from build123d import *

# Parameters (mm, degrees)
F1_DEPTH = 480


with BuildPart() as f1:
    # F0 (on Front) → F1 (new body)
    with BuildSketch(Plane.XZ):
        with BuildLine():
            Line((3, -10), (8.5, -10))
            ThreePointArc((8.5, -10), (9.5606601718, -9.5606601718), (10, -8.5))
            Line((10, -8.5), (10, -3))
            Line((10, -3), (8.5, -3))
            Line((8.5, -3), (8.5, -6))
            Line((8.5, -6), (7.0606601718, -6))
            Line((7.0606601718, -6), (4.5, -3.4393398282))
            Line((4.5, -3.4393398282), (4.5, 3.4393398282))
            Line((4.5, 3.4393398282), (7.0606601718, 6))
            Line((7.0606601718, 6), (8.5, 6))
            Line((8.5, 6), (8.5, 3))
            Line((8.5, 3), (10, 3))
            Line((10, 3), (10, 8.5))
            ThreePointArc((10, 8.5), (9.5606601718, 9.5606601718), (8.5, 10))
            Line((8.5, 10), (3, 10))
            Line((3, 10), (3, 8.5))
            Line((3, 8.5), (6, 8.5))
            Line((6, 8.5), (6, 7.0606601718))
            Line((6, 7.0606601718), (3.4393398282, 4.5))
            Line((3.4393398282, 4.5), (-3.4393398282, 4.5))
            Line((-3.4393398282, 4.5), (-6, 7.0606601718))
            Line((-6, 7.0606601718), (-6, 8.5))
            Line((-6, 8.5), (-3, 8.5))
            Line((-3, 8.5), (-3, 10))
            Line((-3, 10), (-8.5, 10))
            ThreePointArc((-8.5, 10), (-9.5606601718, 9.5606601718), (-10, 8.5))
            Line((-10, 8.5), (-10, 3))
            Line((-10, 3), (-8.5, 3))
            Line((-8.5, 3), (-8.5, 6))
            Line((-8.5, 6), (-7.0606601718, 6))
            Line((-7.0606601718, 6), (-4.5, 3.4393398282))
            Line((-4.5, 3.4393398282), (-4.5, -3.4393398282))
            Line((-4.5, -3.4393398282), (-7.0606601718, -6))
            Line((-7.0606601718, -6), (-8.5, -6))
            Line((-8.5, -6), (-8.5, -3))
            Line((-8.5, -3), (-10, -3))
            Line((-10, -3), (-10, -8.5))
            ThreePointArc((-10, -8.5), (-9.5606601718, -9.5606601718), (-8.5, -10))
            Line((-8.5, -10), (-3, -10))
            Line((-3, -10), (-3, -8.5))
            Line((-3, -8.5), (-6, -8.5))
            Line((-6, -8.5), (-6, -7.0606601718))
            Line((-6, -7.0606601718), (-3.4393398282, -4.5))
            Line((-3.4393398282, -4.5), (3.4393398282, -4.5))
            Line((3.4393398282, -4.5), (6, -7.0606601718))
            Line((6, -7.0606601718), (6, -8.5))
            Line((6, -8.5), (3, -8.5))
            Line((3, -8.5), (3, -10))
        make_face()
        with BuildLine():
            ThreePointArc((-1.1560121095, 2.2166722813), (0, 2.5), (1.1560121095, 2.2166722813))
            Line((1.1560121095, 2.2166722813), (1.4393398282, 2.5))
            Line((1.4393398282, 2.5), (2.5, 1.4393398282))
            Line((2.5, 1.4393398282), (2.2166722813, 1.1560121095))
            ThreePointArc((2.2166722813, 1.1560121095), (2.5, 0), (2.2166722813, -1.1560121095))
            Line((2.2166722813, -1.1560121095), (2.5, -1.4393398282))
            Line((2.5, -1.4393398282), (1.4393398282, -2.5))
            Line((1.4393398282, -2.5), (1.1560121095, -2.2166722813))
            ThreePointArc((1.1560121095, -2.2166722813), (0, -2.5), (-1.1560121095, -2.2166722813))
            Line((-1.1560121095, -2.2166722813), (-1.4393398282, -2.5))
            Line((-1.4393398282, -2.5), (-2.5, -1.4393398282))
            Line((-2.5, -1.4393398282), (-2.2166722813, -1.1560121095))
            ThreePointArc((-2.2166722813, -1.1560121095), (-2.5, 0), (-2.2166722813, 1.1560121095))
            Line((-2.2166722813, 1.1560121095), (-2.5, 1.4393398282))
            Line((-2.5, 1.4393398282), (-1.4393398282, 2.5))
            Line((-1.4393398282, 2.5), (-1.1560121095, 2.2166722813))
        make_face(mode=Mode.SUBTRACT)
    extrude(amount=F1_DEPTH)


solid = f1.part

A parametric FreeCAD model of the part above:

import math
import FreeCAD as App
import Part
import Sketcher

doc = App.newDocument("Part")
body = doc.addObject("PartDesign::Body", "Body")

# Sketch on XZ plane
sketch1 = body.newObject("Sketcher::SketchObject", "Sketch")
sketch1.AttachmentSupport = (doc.getObject("XZ_Plane"), [""])
sketch1.MapMode = "FlatFace"
sketch1.addGeometry(Part.LineSegment(App.Vector(3, -10, 0), App.Vector(8.5, -10, 0)), False)
sketch1.addGeometry(Part.ArcOfCircle(Part.Circle(App.Vector(8.5, -8.5, 0), App.Vector(0, 0, 1), 1.5), math.radians(-90), math.radians(0)), False)
sketch1.addGeometry(Part.LineSegment(App.Vector(10, -8.5, 0), App.Vector(10, -3, 0)), False)
sketch1.addGeometry(Part.LineSegment(App.Vector(10, -3, 0), App.Vector(8.5, -3, 0)), False)
sketch1.addGeometry(Part.LineSegment(App.Vector(8.5, -3, 0), App.Vector(8.5, -6, 0)), False)
sketch1.addGeometry(Part.LineSegment(App.Vector(8.5, -6, 0), App.Vector(7.06, -6, 0)), False)
sketch1.addGeometry(Part.LineSegment(App.Vector(7.06, -6, 0), App.Vector(4.5, -3.44, 0)), False)
sketch1.addGeometry(Part.LineSegment(App.Vector(4.5, -3.44, 0), App.Vector(4.5, 3.44, 0)), False)
sketch1.addGeometry(Part.LineSegment(App.Vector(4.5, 3.44, 0), App.Vector(7.06, 6, 0)), False)
sketch1.addGeometry(Part.LineSegment(App.Vector(7.06, 6, 0), App.Vector(8.5, 6, 0)), False)
sketch1.addGeometry(Part.LineSegment(App.Vector(8.5, 6, 0), App.Vector(8.5, 3, 0)), False)
sketch1.addGeometry(Part.LineSegment(App.Vector(8.5, 3, 0), App.Vector(10, 3, 0)), False)
sketch1.addGeometry(Part.LineSegment(App.Vector(10, 3, 0), App.Vector(10, 8.5, 0)), False)
sketch1.addGeometry(Part.ArcOfCircle(Part.Circle(App.Vector(8.5, 8.5, 0), App.Vector(0, 0, 1), 1.5), math.radians(0), math.radians(90)), False)
sketch1.addGeometry(Part.LineSegment(App.Vector(8.5, 10, 0), App.Vector(3, 10, 0)), False)
sketch1.addGeometry(Part.LineSegment(App.Vector(3, 10, 0), App.Vector(3, 8.5, 0)), False)
sketch1.addGeometry(Part.LineSegment(App.Vector(3, 8.5, 0), App.Vector(6, 8.5, 0)), False)
sketch1.addGeometry(Part.LineSegment(App.Vector(6, 8.5, 0), App.Vector(6, 7.06, 0)), False)
sketch1.addGeometry(Part.LineSegment(App.Vector(6, 7.06, 0), App.Vector(3.44, 4.5, 0)), False)
sketch1.addGeometry(Part.LineSegment(App.Vector(3.44, 4.5, 0), App.Vector(-3.44, 4.5, 0)), False)
sketch1.addGeometry(Part.LineSegment(App.Vector(-3.44, 4.5, 0), App.Vector(-6, 7.06, 0)), False)
sketch1.addGeometry(Part.LineSegment(App.Vector(-6, 7.06, 0), App.Vector(-6, 8.5, 0)), False)
sketch1.addGeometry(Part.LineSegment(App.Vector(-6, 8.5, 0), App.Vector(-3, 8.5, 0)), False)
sketch1.addGeometry(Part.LineSegment(App.Vector(-3, 8.5, 0), App.Vector(-3, 10, 0)), False)
sketch1.addGeometry(Part.LineSegment(App.Vector(-3, 10, 0), App.Vector(-8.5, 10, 0)), False)
sketch1.addGeometry(Part.ArcOfCircle(Part.Circle(App.Vector(-8.5, 8.5, 0), App.Vector(0, 0, 1), 1.5), math.radians(90), math.radians(180)), False)
sketch1.addGeometry(Part.LineSegment(App.Vector(-10, 8.5, 0), App.Vector(-10, 3, 0)), False)
sketch1.addGeometry(Part.LineSegment(App.Vector(-10, 3, 0), App.Vector(-8.5, 3, 0)), False)
sketch1.addGeometry(Part.LineSegment(App.Vector(-8.5, 3, 0), App.Vector(-8.5, 6, 0)), False)
sketch1.addGeometry(Part.LineSegment(App.Vector(-8.5, 6, 0), App.Vector(-7.06, 6, 0)), False)
sketch1.addGeometry(Part.LineSegment(App.Vector(-7.06, 6, 0), App.Vector(-4.5, 3.44, 0)), False)
sketch1.addGeometry(Part.LineSegment(App.Vector(-4.5, 3.44, 0), App.Vector(-4.5, -3.44, 0)), False)
sketch1.addGeometry(Part.LineSegment(App.Vector(-4.5, -3.44, 0), App.Vector(-7.06, -6, 0)), False)
sketch1.addGeometry(Part.LineSegment(App.Vector(-7.06, -6, 0), App.Vector(-8.5, -6, 0)), False)
sketch1.addGeometry(Part.LineSegment(App.Vector(-8.5, -6, 0), App.Vector(-8.5, -3, 0)), False)
sketch1.addGeometry(Part.LineSegment(App.Vector(-8.5, -3, 0), App.Vector(-10, -3, 0)), False)
sketch1.addGeometry(Part.LineSegment(App.Vector(-10, -3, 0), App.Vector(-10, -8.5, 0)), False)
sketch1.addGeometry(Part.ArcOfCircle(Part.Circle(App.Vector(-8.5, -8.5, 0), App.Vector(0, 0, 1), 1.5), math.radians(180), math.radians(270)), False)
sketch1.addGeometry(Part.LineSegment(App.Vector(-8.5, -10, 0), App.Vector(-3, -10, 0)), False)
sketch1.addGeometry(Part.LineSegment(App.Vector(-3, -10, 0), App.Vector(-3, -8.5, 0)), False)
sketch1.addGeometry(Part.LineSegment(App.Vector(-3, -8.5, 0), App.Vector(-6, -8.5, 0)), False)
sketch1.addGeometry(Part.LineSegment(App.Vector(-6, -8.5, 0), App.Vector(-6, -7.06, 0)), False)
sketch1.addGeometry(Part.LineSegment(App.Vector(-6, -7.06, 0), App.Vector(-3.44, -4.5, 0)), False)
sketch1.addGeometry(Part.LineSegment(App.Vector(-3.44, -4.5, 0), App.Vector(3.44, -4.5, 0)), False)
sketch1.addGeometry(Part.LineSegment(App.Vector(3.44, -4.5, 0), App.Vector(6, -7.06, 0)), False)
sketch1.addGeometry(Part.LineSegment(App.Vector(6, -7.06, 0), App.Vector(6, -8.5, 0)), False)
sketch1.addGeometry(Part.LineSegment(App.Vector(6, -8.5, 0), App.Vector(3, -8.5, 0)), False)
sketch1.addGeometry(Part.LineSegment(App.Vector(3, -8.5, 0), App.Vector(3, -10, 0)), False)
sketch1.addGeometry(Part.LineSegment(App.Vector(-1.44, 2.5, 0), App.Vector(-1.16, 2.22, 0)), False)
sketch1.addGeometry(Part.ArcOfCircle(Part.Circle(App.Vector(0, 0, 0), App.Vector(0, 0, 1), 2.5), math.radians(62), math.radians(118)), False)
sketch1.addGeometry(Part.LineSegment(App.Vector(1.16, 2.22, 0), App.Vector(1.44, 2.5, 0)), False)
sketch1.addGeometry(Part.LineSegment(App.Vector(1.44, 2.5, 0), App.Vector(2.5, 1.44, 0)), False)
sketch1.addGeometry(Part.LineSegment(App.Vector(2.5, 1.44, 0), App.Vector(2.22, 1.16, 0)), False)
sketch1.addGeometry(Part.ArcOfCircle(Part.Circle(App.Vector(0, 0, 0), App.Vector(0, 0, 1), 2.5), math.radians(-28), math.radians(28)), False)
sketch1.addGeometry(Part.LineSegment(App.Vector(2.22, -1.16, 0), App.Vector(2.5, -1.44, 0)), False)
sketch1.addGeometry(Part.LineSegment(App.Vector(2.5, -1.44, 0), App.Vector(1.44, -2.5, 0)), False)
sketch1.addGeometry(Part.LineSegment(App.Vector(1.44, -2.5, 0), App.Vector(1.16, -2.22, 0)), False)
sketch1.addGeometry(Part.ArcOfCircle(Part.Circle(App.Vector(0, 0, 0), App.Vector(0, 0, 1), 2.5), math.radians(-118), math.radians(-62)), False)
sketch1.addGeometry(Part.LineSegment(App.Vector(-1.16, -2.22, 0), App.Vector(-1.44, -2.5, 0)), False)
sketch1.addGeometry(Part.LineSegment(App.Vector(-1.44, -2.5, 0), App.Vector(-2.5, -1.44, 0)), False)
sketch1.addGeometry(Part.LineSegment(App.Vector(-2.5, -1.44, 0), App.Vector(-2.22, -1.16, 0)), False)
sketch1.addGeometry(Part.ArcOfCircle(Part.Circle(App.Vector(0, 0, 0), App.Vector(0, 0, 1), 2.5), math.radians(152), math.radians(208)), False)
sketch1.addGeometry(Part.LineSegment(App.Vector(-2.22, 1.16, 0), App.Vector(-2.5, 1.44, 0)), False)
sketch1.addGeometry(Part.LineSegment(App.Vector(-2.5, 1.44, 0), App.Vector(-1.44, 2.5, 0)), False)
sketch1.addConstraint(Sketcher.Constraint("Tangent", 0, 2, 1, 1))
sketch1.addConstraint(Sketcher.Constraint("Tangent", 1, 2, 2, 1))
sketch1.addConstraint(Sketcher.Constraint("Coincident", 2, 2, 3, 1))
sketch1.addConstraint(Sketcher.Constraint("Coincident", 3, 2, 4, 1))
sketch1.addConstraint(Sketcher.Constraint("Coincident", 4, 2, 5, 1))
sketch1.addConstraint(Sketcher.Constraint("Coincident", 5, 2, 6, 1))
sketch1.addConstraint(Sketcher.Constraint("Coincident", 6, 2, 7, 1))
sketch1.addConstraint(Sketcher.Constraint("Coincident", 7, 2, 8, 1))
sketch1.addConstraint(Sketcher.Constraint("Coincident", 8, 2, 9, 1))
sketch1.addConstraint(Sketcher.Constraint("Coincident", 9, 2, 10, 1))
sketch1.addConstraint(Sketcher.Constraint("Coincident", 10, 2, 11, 1))
sketch1.addConstraint(Sketcher.Constraint("Coincident", 11, 2, 12, 1))
sketch1.addConstraint(Sketcher.Constraint("Tangent", 12, 2, 13, 1))
sketch1.addConstraint(Sketcher.Constraint("Tangent", 13, 2, 14, 1))
sketch1.addConstraint(Sketcher.Constraint("Coincident", 14, 2, 15, 1))
sketch1.addConstraint(Sketcher.Constraint("Coincident", 15, 2, 16, 1))
sketch1.addConstraint(Sketcher.Constraint("Coincident", 16, 2, 17, 1))
sketch1.addConstraint(Sketcher.Constraint("Coincident", 17, 2, 18, 1))
sketch1.addConstraint(Sketcher.Constraint("Coincident", 18, 2, 19, 1))
sketch1.addConstraint(Sketcher.Constraint("Coincident", 19, 2, 20, 1))
sketch1.addConstraint(Sketcher.Constraint("Coincident", 20, 2, 21, 1))
sketch1.addConstraint(Sketcher.Constraint("Coincident", 21, 2, 22, 1))
sketch1.addConstraint(Sketcher.Constraint("Coincident", 22, 2, 23, 1))
sketch1.addConstraint(Sketcher.Constraint("Coincident", 23, 2, 24, 1))
sketch1.addConstraint(Sketcher.Constraint("Tangent", 24, 2, 25, 1))
sketch1.addConstraint(Sketcher.Constraint("Tangent", 25, 2, 26, 1))
sketch1.addConstraint(Sketcher.Constraint("Coincident", 26, 2, 27, 1))
sketch1.addConstraint(Sketcher.Constraint("Coincident", 27, 2, 28, 1))
sketch1.addConstraint(Sketcher.Constraint("Coincident", 28, 2, 29, 1))
sketch1.addConstraint(Sketcher.Constraint("Coincident", 29, 2, 30, 1))
sketch1.addConstraint(Sketcher.Constraint("Coincident", 30, 2, 31, 1))
sketch1.addConstraint(Sketcher.Constraint("Coincident", 31, 2, 32, 1))
sketch1.addConstraint(Sketcher.Constraint("Coincident", 32, 2, 33, 1))
sketch1.addConstraint(Sketcher.Constraint("Coincident", 33, 2, 34, 1))
sketch1.addConstraint(Sketcher.Constraint("Coincident", 34, 2, 35, 1))
sketch1.addConstraint(Sketcher.Constraint("Coincident", 35, 2, 36, 1))
sketch1.addConstraint(Sketcher.Constraint("Tangent", 36, 2, 37, 1))
sketch1.addConstraint(Sketcher.Constraint("Tangent", 37, 2, 38, 1))
sketch1.addConstraint(Sketcher.Constraint("Coincident", 38, 2, 39, 1))
sketch1.addConstraint(Sketcher.Constraint("Coincident", 39, 2, 40, 1))
sketch1.addConstraint(Sketcher.Constraint("Coincident", 40, 2, 41, 1))
sketch1.addConstraint(Sketcher.Constraint("Coincident", 41, 2, 42, 1))
sketch1.addConstraint(Sketcher.Constraint("Coincident", 42, 2, 43, 1))
sketch1.addConstraint(Sketcher.Constraint("Coincident", 43, 2, 44, 1))
sketch1.addConstraint(Sketcher.Constraint("Coincident", 44, 2, 45, 1))
sketch1.addConstraint(Sketcher.Constraint("Coincident", 45, 2, 46, 1))
sketch1.addConstraint(Sketcher.Constraint("Coincident", 46, 2, 47, 1))
sketch1.addConstraint(Sketcher.Constraint("Coincident", 47, 2, 0, 1))
sketch1.addConstraint(Sketcher.Constraint("Coincident", 48, 2, 49, 2))
sketch1.addConstraint(Sketcher.Constraint("Coincident", 49, 1, 50, 1))
sketch1.addConstraint(Sketcher.Constraint("Coincident", 50, 2, 51, 1))
sketch1.addConstraint(Sketcher.Constraint("Coincident", 51, 2, 52, 1))
sketch1.addConstraint(Sketcher.Constraint("Coincident", 52, 2, 53, 2))
sketch1.addConstraint(Sketcher.Constraint("Coincident", 53, 1, 54, 1))
sketch1.addConstraint(Sketcher.Constraint("Coincident", 54, 2, 55, 1))
sketch1.addConstraint(Sketcher.Constraint("Coincident", 55, 2, 56, 1))
sketch1.addConstraint(Sketcher.Constraint("Coincident", 56, 2, 57, 2))
sketch1.addConstraint(Sketcher.Constraint("Coincident", 57, 1, 58, 1))
sketch1.addConstraint(Sketcher.Constraint("Coincident", 58, 2, 59, 1))
sketch1.addConstraint(Sketcher.Constraint("Coincident", 59, 2, 60, 1))
sketch1.addConstraint(Sketcher.Constraint("Coincident", 60, 2, 61, 2))
sketch1.addConstraint(Sketcher.Constraint("Coincident", 61, 1, 62, 1))
sketch1.addConstraint(Sketcher.Constraint("Coincident", 62, 2, 63, 1))
sketch1.addConstraint(Sketcher.Constraint("Coincident", 63, 2, 48, 1))
sketch1.addConstraint(Sketcher.Constraint("Horizontal", 0))
sketch1.addConstraint(Sketcher.Constraint("Vertical", 2))
sketch1.addConstraint(Sketcher.Constraint("Horizontal", 3))
sketch1.addConstraint(Sketcher.Constraint("Vertical", 4))
sketch1.addConstraint(Sketcher.Constraint("Horizontal", 5))
sketch1.addConstraint(Sketcher.Constraint("Vertical", 7))
sketch1.addConstraint(Sketcher.Constraint("Horizontal", 9))
sketch1.addConstraint(Sketcher.Constraint("Vertical", 10))
sketch1.addConstraint(Sketcher.Constraint("Horizontal", 11))
sketch1.addConstraint(Sketcher.Constraint("Vertical", 12))
sketch1.addConstraint(Sketcher.Constraint("Horizontal", 14))
sketch1.addConstraint(Sketcher.Constraint("Vertical", 15))
sketch1.addConstraint(Sketcher.Constraint("Horizontal", 16))
sketch1.addConstraint(Sketcher.Constraint("Vertical", 17))
sketch1.addConstraint(Sketcher.Constraint("Horizontal", 19))
sketch1.addConstraint(Sketcher.Constraint("Vertical", 21))
sketch1.addConstraint(Sketcher.Constraint("Horizontal", 22))
sketch1.addConstraint(Sketcher.Constraint("Vertical", 23))
sketch1.addConstraint(Sketcher.Constraint("Horizontal", 24))
sketch1.addConstraint(Sketcher.Constraint("Vertical", 26))
sketch1.addConstraint(Sketcher.Constraint("Horizontal", 27))
sketch1.addConstraint(Sketcher.Constraint("Vertical", 28))
sketch1.addConstraint(Sketcher.Constraint("Horizontal", 29))
sketch1.addConstraint(Sketcher.Constraint("Vertical", 31))
sketch1.addConstraint(Sketcher.Constraint("Horizontal", 33))
sketch1.addConstraint(Sketcher.Constraint("Vertical", 34))
sketch1.addConstraint(Sketcher.Constraint("Horizontal", 35))
sketch1.addConstraint(Sketcher.Constraint("Vertical", 36))
sketch1.addConstraint(Sketcher.Constraint("Horizontal", 38))
sketch1.addConstraint(Sketcher.Constraint("Vertical", 39))
sketch1.addConstraint(Sketcher.Constraint("Horizontal", 40))
sketch1.addConstraint(Sketcher.Constraint("Vertical", 41))
sketch1.addConstraint(Sketcher.Constraint("Horizontal", 43))
sketch1.addConstraint(Sketcher.Constraint("Vertical", 45))
sketch1.addConstraint(Sketcher.Constraint("Horizontal", 46))
sketch1.addConstraint(Sketcher.Constraint("Vertical", 47))
sketch1.addConstraint(Sketcher.Constraint("Coincident", 49, 3, -1, 1))
sketch1.addConstraint(Sketcher.Constraint("Coincident", 53, 3, -1, 1))
sketch1.addConstraint(Sketcher.Constraint("Coincident", 57, 3, -1, 1))
sketch1.addConstraint(Sketcher.Constraint("Coincident", 61, 3, -1, 1))
sketch1.addConstraint(Sketcher.Constraint("Equal", 1, 13))
sketch1.addConstraint(Sketcher.Constraint("Equal", 13, 25))
sketch1.addConstraint(Sketcher.Constraint("Equal", 25, 37))
sketch1.addConstraint(Sketcher.Constraint("Equal", 49, 53))
sketch1.addConstraint(Sketcher.Constraint("Equal", 53, 57))
sketch1.addConstraint(Sketcher.Constraint("Equal", 57, 61))
sketch1.addConstraint(Sketcher.Constraint("Symmetric", 1, 3, 25, 3, -1, 1))
sketch1.addConstraint(Sketcher.Constraint("Symmetric", 13, 3, 37, 3, -1, 1))
sketch1.addConstraint(Sketcher.Constraint("Symmetric", 3, 2, 27, 2, -1, 1))
sketch1.addConstraint(Sketcher.Constraint("Symmetric", 5, 2, 29, 2, -1, 1))
sketch1.addConstraint(Sketcher.Constraint("Symmetric", 6, 2, 30, 2, -1, 1))
sketch1.addConstraint(Sketcher.Constraint("Symmetric", 8, 2, 32, 2, -1, 1))
sketch1.addConstraint(Sketcher.Constraint("Symmetric", 10, 2, 34, 2, -1, 1))
sketch1.addConstraint(Sketcher.Constraint("Symmetric", 15, 2, 39, 2, -1, 1))
sketch1.addConstraint(Sketcher.Constraint("Symmetric", 17, 2, 41, 2, -1, 1))
sketch1.addConstraint(Sketcher.Constraint("Symmetric", 18, 2, 42, 2, -1, 1))
sketch1.addConstraint(Sketcher.Constraint("Symmetric", 20, 2, 44, 2, -1, 1))
sketch1.addConstraint(Sketcher.Constraint("Symmetric", 22, 2, 46, 2, -1, 1))
sketch1.addConstraint(Sketcher.Constraint("Symmetric", 50, 2, 58, 2, -1, 1))
sketch1.addConstraint(Sketcher.Constraint("Symmetric", 51, 2, 59, 2, -1, 1))
sketch1.addConstraint(Sketcher.Constraint("Symmetric", 54, 2, 62, 2, -1, 1))
sketch1.addConstraint(Sketcher.Constraint("Symmetric", 55, 2, 63, 2, -1, 1))
sketch1.addConstraint(Sketcher.Constraint("Symmetric", 13, 3, 25, 3, -2))
sketch1.addConstraint(Sketcher.Constraint("Symmetric", 17, 2, 20, 2, -2))
sketch1.addConstraint(Sketcher.Constraint("Symmetric", 15, 2, 22, 2, -2))
sketch1.addConstraint(Sketcher.Constraint("Symmetric", 10, 2, 27, 2, -2))
sketch1.addConstraint(Sketcher.Constraint("Symmetric", 8, 2, 29, 2, -2))
sketch1.addConstraint(Sketcher.Constraint("Symmetric", 55, 2, 58, 2, -2))
sketch1.addConstraint(Sketcher.Constraint("Symmetric", 54, 2, 59, 2, -2))
sketch1.addConstraint(Sketcher.Constraint("Perpendicular", 6, 8))
sketch1.addConstraint(Sketcher.Constraint("Parallel", 8, 18))
sketch1.addConstraint(Sketcher.Constraint("Perpendicular", 18, 20))
sketch1.addConstraint(Sketcher.Constraint("Perpendicular", 30, 32))
sketch1.addConstraint(Sketcher.Constraint("Perpendicular", 42, 44))
sketch1.addConstraint(Sketcher.Constraint("Parallel", 44, 48))
sketch1.addConstraint(Sketcher.Constraint("Perpendicular", 48, 50))
sketch1.addConstraint(Sketcher.Constraint("Perpendicular", 50, 51))
sketch1.addConstraint(Sketcher.Constraint("Perpendicular", 51, 52))
sketch1.addConstraint(Sketcher.Constraint("Perpendicular", 52, 54))
sketch1.addConstraint(Sketcher.Constraint("Perpendicular", 54, 55))
sketch1.addConstraint(Sketcher.Constraint("Perpendicular", 55, 56))
sketch1.addConstraint(Sketcher.Constraint("Perpendicular", 56, 58))
sketch1.addConstraint(Sketcher.Constraint("Perpendicular", 59, 60))
sketch1.addConstraint(Sketcher.Constraint("Perpendicular", 60, 62))
sketch1.addConstraint(Sketcher.Constraint("Horizontal", 12, 2, 15, 2))
sketch1.addConstraint(Sketcher.Constraint("Vertical", 0, 2, 3, 2))
sketch1.addConstraint(Sketcher.Constraint("Equal", 38, 2))
sketch1.addConstraint(Sketcher.Constraint("Equal", 46, 4))
sketch1.addConstraint(Sketcher.Constraint("Equal", 43, 7))
sketch1.addConstraint(Sketcher.Constraint("Equal", 33, 17))
sketch1.addConstraint(Sketcher.Constraint("Equal", 8, 18))
sketch1.addConstraint(Sketcher.Constraint("Equal", 50, 52))
sketch1.addConstraint(Sketcher.Constraint("Radius", 1, 1.5))
sketch1.addConstraint(Sketcher.Constraint("Radius", 49, 2.5))
sketch1.addConstraint(Sketcher.Constraint("DistanceX", 16, 1, 16, 2, 3.0))
sketch1.addConstraint(Sketcher.Constraint("DistanceX", 0, 1, 0, 2, 5.5))
sketch1.addConstraint(Sketcher.Constraint("DistanceY", 0, 2, -1, 1, 10.0))
sketch1.addConstraint(Sketcher.Constraint("Distance", 51, 1.5))
sketch1.addConstraint(Sketcher.Constraint("DistanceX", -1, 1, 6, 2, 4.5))
sketch1.addConstraint(Sketcher.Constraint("DistanceY", -1, 1, 50, 2, 2.5))
sketch1.addConstraint(Sketcher.Constraint("DistanceX", 5, 2, 5, 1, 1.43934))
pad1 = body.newObject("PartDesign::Pad", "Pad")
pad1.Profile = sketch1
pad1.Length = 480

doc.recompute()
